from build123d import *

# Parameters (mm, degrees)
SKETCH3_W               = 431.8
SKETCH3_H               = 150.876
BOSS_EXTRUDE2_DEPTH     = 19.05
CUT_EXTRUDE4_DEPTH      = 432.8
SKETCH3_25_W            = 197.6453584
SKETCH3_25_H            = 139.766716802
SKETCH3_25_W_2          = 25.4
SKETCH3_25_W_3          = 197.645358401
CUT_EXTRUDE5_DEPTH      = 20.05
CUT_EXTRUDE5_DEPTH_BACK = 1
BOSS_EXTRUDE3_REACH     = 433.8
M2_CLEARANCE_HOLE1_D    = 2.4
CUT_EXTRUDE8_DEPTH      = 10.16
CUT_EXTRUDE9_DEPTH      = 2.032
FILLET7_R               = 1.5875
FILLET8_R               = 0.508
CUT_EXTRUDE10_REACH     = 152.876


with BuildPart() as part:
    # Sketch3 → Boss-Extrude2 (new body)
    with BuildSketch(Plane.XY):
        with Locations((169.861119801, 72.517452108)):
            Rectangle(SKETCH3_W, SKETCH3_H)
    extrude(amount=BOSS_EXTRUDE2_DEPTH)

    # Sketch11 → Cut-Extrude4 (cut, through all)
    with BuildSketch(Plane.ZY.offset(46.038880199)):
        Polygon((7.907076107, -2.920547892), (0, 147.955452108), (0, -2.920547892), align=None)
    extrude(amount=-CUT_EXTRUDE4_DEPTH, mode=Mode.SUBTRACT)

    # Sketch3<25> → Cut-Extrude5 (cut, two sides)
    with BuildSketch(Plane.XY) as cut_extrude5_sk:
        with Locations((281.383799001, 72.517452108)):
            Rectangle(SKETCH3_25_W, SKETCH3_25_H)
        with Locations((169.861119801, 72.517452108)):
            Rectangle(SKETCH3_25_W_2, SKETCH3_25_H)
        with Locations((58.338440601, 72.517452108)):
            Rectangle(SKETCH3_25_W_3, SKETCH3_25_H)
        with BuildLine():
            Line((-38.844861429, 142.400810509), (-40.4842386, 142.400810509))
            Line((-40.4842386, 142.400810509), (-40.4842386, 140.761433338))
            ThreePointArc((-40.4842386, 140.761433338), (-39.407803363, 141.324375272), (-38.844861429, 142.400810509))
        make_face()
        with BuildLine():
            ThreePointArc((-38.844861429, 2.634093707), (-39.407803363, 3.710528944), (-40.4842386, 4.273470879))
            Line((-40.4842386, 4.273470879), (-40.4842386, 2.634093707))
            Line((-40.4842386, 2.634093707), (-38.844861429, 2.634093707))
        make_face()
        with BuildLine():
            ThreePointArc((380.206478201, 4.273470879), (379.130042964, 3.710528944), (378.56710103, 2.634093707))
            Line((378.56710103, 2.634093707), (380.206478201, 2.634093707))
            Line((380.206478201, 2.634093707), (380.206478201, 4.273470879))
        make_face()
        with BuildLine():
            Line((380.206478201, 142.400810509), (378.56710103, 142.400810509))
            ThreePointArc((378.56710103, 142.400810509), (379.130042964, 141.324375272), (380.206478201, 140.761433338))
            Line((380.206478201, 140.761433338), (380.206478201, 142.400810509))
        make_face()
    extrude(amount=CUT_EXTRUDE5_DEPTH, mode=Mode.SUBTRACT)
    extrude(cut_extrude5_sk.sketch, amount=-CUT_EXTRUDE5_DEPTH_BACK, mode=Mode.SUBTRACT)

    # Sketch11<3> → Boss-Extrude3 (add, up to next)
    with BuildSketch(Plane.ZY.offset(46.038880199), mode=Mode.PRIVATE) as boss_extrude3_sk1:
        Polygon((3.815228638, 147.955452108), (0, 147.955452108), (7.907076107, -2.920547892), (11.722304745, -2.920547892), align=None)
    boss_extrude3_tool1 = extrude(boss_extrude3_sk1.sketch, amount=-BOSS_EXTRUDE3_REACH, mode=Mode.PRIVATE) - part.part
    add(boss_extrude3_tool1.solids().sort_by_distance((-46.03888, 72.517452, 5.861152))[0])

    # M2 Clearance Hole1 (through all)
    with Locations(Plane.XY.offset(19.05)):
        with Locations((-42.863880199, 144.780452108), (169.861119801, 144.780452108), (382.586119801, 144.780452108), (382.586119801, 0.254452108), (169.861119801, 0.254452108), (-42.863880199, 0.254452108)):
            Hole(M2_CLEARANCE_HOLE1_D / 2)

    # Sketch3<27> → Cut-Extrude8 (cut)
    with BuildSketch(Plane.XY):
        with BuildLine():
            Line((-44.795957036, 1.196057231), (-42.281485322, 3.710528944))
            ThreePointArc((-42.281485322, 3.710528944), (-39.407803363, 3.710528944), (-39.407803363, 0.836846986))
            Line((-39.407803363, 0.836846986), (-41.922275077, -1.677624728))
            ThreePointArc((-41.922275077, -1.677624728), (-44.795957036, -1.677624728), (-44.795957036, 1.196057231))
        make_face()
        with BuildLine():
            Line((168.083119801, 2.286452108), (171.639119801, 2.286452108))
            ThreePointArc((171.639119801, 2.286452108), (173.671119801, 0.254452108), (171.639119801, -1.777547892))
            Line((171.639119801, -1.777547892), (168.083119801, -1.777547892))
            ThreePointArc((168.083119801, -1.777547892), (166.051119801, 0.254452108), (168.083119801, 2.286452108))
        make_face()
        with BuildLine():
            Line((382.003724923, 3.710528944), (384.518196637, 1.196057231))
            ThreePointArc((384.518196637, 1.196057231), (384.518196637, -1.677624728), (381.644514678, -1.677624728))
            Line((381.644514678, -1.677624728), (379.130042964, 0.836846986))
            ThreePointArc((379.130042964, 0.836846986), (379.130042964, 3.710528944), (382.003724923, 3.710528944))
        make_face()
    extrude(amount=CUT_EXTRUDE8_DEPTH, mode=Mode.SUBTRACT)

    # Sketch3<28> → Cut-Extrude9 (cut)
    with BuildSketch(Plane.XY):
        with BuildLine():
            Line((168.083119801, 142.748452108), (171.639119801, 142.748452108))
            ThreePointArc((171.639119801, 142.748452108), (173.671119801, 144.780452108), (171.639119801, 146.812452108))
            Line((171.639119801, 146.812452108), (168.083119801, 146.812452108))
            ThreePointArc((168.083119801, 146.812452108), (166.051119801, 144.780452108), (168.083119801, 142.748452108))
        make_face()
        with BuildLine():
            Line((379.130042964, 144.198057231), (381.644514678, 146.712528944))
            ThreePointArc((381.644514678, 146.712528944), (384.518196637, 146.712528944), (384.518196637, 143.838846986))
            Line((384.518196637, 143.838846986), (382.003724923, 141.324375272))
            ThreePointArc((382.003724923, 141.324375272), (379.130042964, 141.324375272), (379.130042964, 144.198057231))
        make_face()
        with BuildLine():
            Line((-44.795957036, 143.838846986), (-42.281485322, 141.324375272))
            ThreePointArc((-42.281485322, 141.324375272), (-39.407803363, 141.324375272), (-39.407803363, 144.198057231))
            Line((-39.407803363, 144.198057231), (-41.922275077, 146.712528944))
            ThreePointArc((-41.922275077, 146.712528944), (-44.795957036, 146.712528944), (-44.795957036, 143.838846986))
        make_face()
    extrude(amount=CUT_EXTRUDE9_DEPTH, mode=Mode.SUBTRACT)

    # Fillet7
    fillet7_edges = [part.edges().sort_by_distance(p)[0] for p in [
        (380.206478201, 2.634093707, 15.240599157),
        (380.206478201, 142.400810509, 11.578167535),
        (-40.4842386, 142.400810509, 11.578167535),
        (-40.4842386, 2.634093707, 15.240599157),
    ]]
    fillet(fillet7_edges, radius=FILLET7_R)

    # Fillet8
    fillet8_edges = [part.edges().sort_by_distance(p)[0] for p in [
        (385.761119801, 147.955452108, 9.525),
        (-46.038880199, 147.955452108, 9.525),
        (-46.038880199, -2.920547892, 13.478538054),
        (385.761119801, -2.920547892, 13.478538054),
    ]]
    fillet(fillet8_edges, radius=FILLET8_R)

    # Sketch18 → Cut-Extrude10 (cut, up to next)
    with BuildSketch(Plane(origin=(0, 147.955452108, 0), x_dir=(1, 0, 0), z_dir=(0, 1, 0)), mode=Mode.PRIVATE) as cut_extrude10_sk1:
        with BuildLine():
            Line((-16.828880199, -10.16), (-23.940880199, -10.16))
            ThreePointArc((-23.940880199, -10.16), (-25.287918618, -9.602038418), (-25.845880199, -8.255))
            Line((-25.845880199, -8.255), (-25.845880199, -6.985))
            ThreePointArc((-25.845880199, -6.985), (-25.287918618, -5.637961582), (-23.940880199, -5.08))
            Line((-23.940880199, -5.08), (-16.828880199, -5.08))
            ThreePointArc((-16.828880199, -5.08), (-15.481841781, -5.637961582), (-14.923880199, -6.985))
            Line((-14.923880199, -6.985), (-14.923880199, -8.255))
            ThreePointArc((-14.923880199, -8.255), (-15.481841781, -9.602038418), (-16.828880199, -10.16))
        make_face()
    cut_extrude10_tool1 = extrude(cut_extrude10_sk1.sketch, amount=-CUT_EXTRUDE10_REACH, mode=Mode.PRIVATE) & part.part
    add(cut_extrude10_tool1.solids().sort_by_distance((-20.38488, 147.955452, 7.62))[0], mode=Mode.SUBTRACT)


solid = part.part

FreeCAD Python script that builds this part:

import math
import FreeCAD as App
import Part
import Sketcher
from FreeCAD import Vector
Q = App.Units.Quantity


def edges_at(feature, points):
    """Names of the edges that pass closest to the given points."""
    edges = feature.Shape.Edges
    near = lambda p: min(range(len(edges)), key=lambda i: edges[i].distToShape(Part.Vertex(*p))[0])
    return sorted({f"Edge{near(p) + 1}" for p in points})


def add_polygon(sketch, points):
    """Adds a closed chain of lines whose ends are joined by coincident constraints."""
    first, n = sketch.GeometryCount, len(points)
    for a, b in zip(points, points[1:] + points[:1]):
        sketch.addGeometry(Part.LineSegment(App.Vector(*a, 0), App.Vector(*b, 0)), False)
    for i in range(n):
        sketch.addConstraint(Sketcher.Constraint("Coincident", first + i, 2, first + (i + 1) % n, 1))

doc = App.newDocument("Part")
body = doc.addObject("PartDesign::Body", "Body")

# Sketch on XY plane
sketch1 = doc.addObject("Sketcher::SketchObject", "Sketch")
body.addObject(sketch1)
sketch1.AttachmentSupport = (doc.XY_Plane, [""])
sketch1.MapMode = "FlatFace"
add_polygon(sketch1, [(-46, 148), (-46, -3), (386, -3), (386, 148)])  # lines 0-3
sketch1.addConstraint([
    Sketcher.Constraint("Vertical", 0),
    Sketcher.Constraint("Horizontal", 1),
    Sketcher.Constraint("Vertical", 2),
    Sketcher.Constraint("Horizontal", 3),
    Sketcher.Constraint("DistanceX", 1, 1, 1, 2, Q("17 in")),
    Sketcher.Constraint("DistanceY", 0, 2, 0, 1, Q("5.94 in")),
    Sketcher.Constraint("DistanceX", 0, 2, -1, 1, Q("46.03888 mm")),
    Sketcher.Constraint("DistanceY", 0, 2, -1, 1, Q("2.920548 mm")),
])
pad1 = doc.addObject("PartDesign::Pad", "Pad")
body.addObject(pad1)
pad1.Profile = sketch1
pad1.Length = Q("0.75 in")

# Sketch on YZ plane
sketch2 = doc.addObject("Sketcher::SketchObject", "Sketch001")
body.addObject(sketch2)
sketch2.AttachmentSupport = (doc.YZ_Plane, [""])
sketch2.MapMode = "FlatFace"
sketch2.AttachmentOffset = App.Placement(Vector(0, 0, -46.03888), App.Rotation())
add_polygon(sketch2, [(-3, 8), (148, 0), (-3, 0)])  # lines 0-2
sketch2.addConstraint([
    Sketcher.Constraint("Horizontal", 1),
    Sketcher.Constraint("Vertical", 2),
    Sketcher.Constraint("PointOnObject", 0, 2, -1),
    Sketcher.Constraint("Angle", 0, Q("-3 deg")),
    Sketcher.Constraint("DistanceX", 1, 2, 1, 1, Q("5.94 in")),
    Sketcher.Constraint("DistanceX", -1, 1, 0, 2, Q("147.955452 mm")),
])
pocket1 = doc.addObject("PartDesign::Pocket", "Pocket")
body.addObject(pocket1)
pocket1.Profile = sketch2
pocket1.Type = "ThroughAll"
pocket1.Reversed = True

# Sketch on XY plane
sketch3 = doc.addObject("Sketcher::SketchObject", "Sketch002")
body.addObject(sketch3)
sketch3.AttachmentSupport = (doc.XY_Plane, [""])
sketch3.MapMode = "FlatFace"
add_polygon(sketch3, [(-40, 142), (-40, 3), (380, 3), (380, 142)])  # lines 0-3
sketch3.addConstraint([
    Sketcher.Constraint("Vertical", 0),
    Sketcher.Constraint("Horizontal", 1),
    Sketcher.Constraint("Vertical", 2),
    Sketcher.Constraint("Horizontal", 3),
    Sketcher.Constraint("DistanceX", 1, 1, 1, 2, Q("420.690717 mm")),
    Sketcher.Constraint("DistanceY", 0, 2, 0, 1, Q("139.766717 mm")),
    Sketcher.Constraint("DistanceX", 0, 2, -1, 1, Q("40.484239 mm")),
    Sketcher.Constraint("DistanceY", -1, 1, 2, 2, Q("142.400811 mm")),
])
pocket2 = doc.addObject("PartDesign::Pocket", "Pocket001")
body.addObject(pocket2)
pocket2.Profile = sketch3
pocket2.Type = "ThroughAll"
pocket2.Midplane = True

# Sketch on YZ plane
sketch4 = doc.addObject("Sketcher::SketchObject", "Sketch003")
body.addObject(sketch4)
sketch4.AttachmentSupport = (doc.YZ_Plane, [""])
sketch4.MapMode = "FlatFace"
sketch4.AttachmentOffset = App.Placement(Vector(0, 0, -46.03888), App.Rotation())
add_polygon(sketch4, [(148, 3.8), (148, 0), (-2.9, 7.9), (-2.9, 11.7)])  # lines 0-3
sketch4.addConstraint([
    Sketcher.Constraint("Vertical", 0),
    Sketcher.Constraint("Vertical", 2),
    Sketcher.Constraint("PointOnObject", 0, 2, -1),
    Sketcher.Constraint("Parallel", 1, 3),
    Sketcher.Constraint("Angle", 1, Q("177 deg")),
    Sketcher.Constraint("DistanceX", 1, 2, 0, 2, Q("5.94 in")),
    Sketcher.Constraint("DistanceY", 0, 2, 0, 1, Q("3.815229 mm")),
    Sketcher.Constraint("DistanceX", -1, 1, 0, 2, Q("147.955452 mm")),
])
pad2 = doc.addObject("PartDesign::Pad", "Pad001")
body.addObject(pad2)
pad2.Profile = sketch4
pad2.Length = 426.245358

# Sketch on XY plane
sketch5 = doc.addObject("Sketcher::SketchObject", "Sketch004")
body.addObject(sketch5)
sketch5.AttachmentSupport = (doc.XY_Plane, [""])
sketch5.MapMode = "FlatFace"
sketch5.AttachmentOffset = App.Placement(Vector(0, 0, 0.75 * 25.4), App.Rotation())
sketch5.addGeometry([
    Part.Circle(Vector(-42.9, 144.8, 0), Vector(0, 0, 1), 1.2),  # 0
    Part.Circle(Vector(169.9, 144.8, 0), Vector(0, 0, 1), 1.2),  # 1
    Part.Circle(Vector(382.6, 144.8, 0), Vector(0, 0, 1), 1.2),  # 2
    Part.Circle(Vector(382.6, 0.3, 0), Vector(0, 0, 1), 1.2),  # 3
    Part.Circle(Vector(169.9, 0.3, 0), Vector(0, 0, 1), 1.2),  # 4
    Part.Circle(Vector(-42.9, 0.3, 0), Vector(0, 0, 1), 1.2),  # 5
], False)
sketch5.addConstraint([
    Sketcher.Constraint("Equal", 0, 1),
    Sketcher.Constraint("Equal", 1, 2),
    Sketcher.Constraint("Equal", 2, 3),
    Sketcher.Constraint("Equal", 3, 4),
    Sketcher.Constraint("Equal", 4, 5),
    Sketcher.Constraint("Horizontal", 0, 3, 1, 3),
    Sketcher.Constraint("Horizontal", 1, 3, 2, 3),
    Sketcher.Constraint("Horizontal", 3, 3, 4, 3),
    Sketcher.Constraint("Horizontal", 4, 3, 5, 3),
    Sketcher.Constraint("Vertical", 2, 3, 3, 3),
    Sketcher.Constraint("Vertical", 1, 3, 4, 3),
    Sketcher.Constraint("Vertical", 0, 3, 5, 3),
    Sketcher.Constraint("Diameter", 0, Q("2.4 mm")),
    Sketcher.Constraint("DistanceX", 0, 3, 2, 3, Q("16.75 in")),
    Sketcher.Constraint("DistanceY", 3, 3, 2, 3, Q("5.69 in")),
    Sketcher.Constraint("DistanceX", 0, 3, 1, 3, Q("8.375 in")),
    Sketcher.Constraint("DistanceX", 0, 3, -1, 1, Q("42.86388 mm")),
    Sketcher.Constraint("DistanceY", -1, 1, 0, 3, Q("144.780452 mm")),
])
doc.recompute()
hole = doc.addObject("PartDesign::Hole", "Hole")
body.addObject(hole)
hole.Profile = sketch5
hole.ThreadType = "None"
hole.Diameter = 2.4
hole.DepthType = "ThroughAll"

# Sketch on XY plane
sketch6 = doc.addObject("Sketcher::SketchObject", "Sketch005")
body.addObject(sketch6)
sketch6.AttachmentSupport = (doc.XY_Plane, [""])
sketch6.MapMode = "FlatFace"
sketch6.addGeometry([
    Part.LineSegment(Vector(-42.3, 3.7, 0), Vector(-44.8, 1.2, 0)),  # 0
    Part.ArcOfCircle(Part.Circle(Vector(-43.4, -0.2, 0), Vector(0, 0, 1), 2), math.radians(135), math.radians(315)),  # 1
    Part.LineSegment(Vector(-41.9, -1.7, 0), Vector(-39.4, 0.8, 0)),  # 2
    Part.ArcOfCircle(Part.Circle(Vector(-40.8, 2.3, 0), Vector(0, 0, 1), 2), math.radians(-45), math.radians(135)),  # 3
    Part.LineSegment(Vector(171.6, 2.3, 0), Vector(168.1, 2.3, 0)),  # 4
    Part.ArcOfCircle(Part.Circle(Vector(168.1, 0.3, 0), Vector(0, 0, 1), 2), math.radians(90), math.radians(270)),  # 5
    Part.LineSegment(Vector(168.1, -1.8, 0), Vector(171.6, -1.8, 0)),  # 6
    Part.ArcOfCircle(Part.Circle(Vector(171.6, 0.3, 0), Vector(0, 0, 1), 2), math.radians(-90), math.radians(90)),  # 7
    Part.LineSegment(Vector(384.5, 1.2, 0), Vector(382, 3.7, 0)),  # 8
    Part.ArcOfCircle(Part.Circle(Vector(380.6, 2.3, 0), Vector(0, 0, 1), 2), math.radians(45), math.radians(225)),  # 9
    Part.LineSegment(Vector(379.1, 0.8, 0), Vector(381.6, -1.7, 0)),  # 10
    Part.ArcOfCircle(Part.Circle(Vector(383.1, -0.2, 0), Vector(0, 0, 1), 2), math.radians(-135), math.radians(45)),  # 11
], False)
sketch6.addConstraint([
    Sketcher.Constraint("Tangent", 0, 2, 1, 1),
    Sketcher.Constraint("Tangent", 1, 2, 2, 1),
    Sketcher.Constraint("Tangent", 2, 2, 3, 1),
    Sketcher.Constraint("Tangent", 3, 2, 0, 1),
    Sketcher.Constraint("Tangent", 4, 2, 5, 1),
    Sketcher.Constraint("Tangent", 5, 2, 6, 1),
    Sketcher.Constraint("Tangent", 6, 2, 7, 1),
    Sketcher.Constraint("Tangent", 7, 2, 4, 1),
    Sketcher.Constraint("Tangent", 8, 2, 9, 1),
    Sketcher.Constraint("Tangent", 9, 2, 10, 1),
    Sketcher.Constraint("Tangent", 10, 2, 11, 1),
    Sketcher.Constraint("Tangent", 11, 2, 8, 1),
    Sketcher.Constraint("Horizontal", 4),
    Sketcher.Constraint("Horizontal", 6),
    Sketcher.Constraint("Equal", 1, 3),
    Sketcher.Constraint("Equal", 3, 5),
    Sketcher.Constraint("Equal", 7, 9),
    Sketcher.Constraint("Equal", 9, 11),
    Sketcher.Constraint("Perpendicular", 2, 8),
    Sketcher.Constraint("Horizontal", 3, 3, 9, 3),
    Sketcher.Constraint("Horizontal", 1, 3, 11, 3),
    Sketcher.Constraint("Horizontal", 3, 2, 8, 2),
    Sketcher.Constraint("Radius", 1, Q("0.08 in")),
    Sketcher.Constraint("DistanceX", 4, 2, 4, 1, Q("0.14 in")),
    Sketcher.Constraint("Distance", 0, Q("0.14 in")),
    Sketcher.Constraint("DistanceX", 1, 3, 9, 3, Q("16.69 in")),
    Sketcher.Constraint("DistanceX", -1, 1, 5, 3, Q("168.08312 mm")),
    Sketcher.Constraint("DistanceY", -1, 1, 3, 2, Q("3.710529 mm")),
    Sketcher.Constraint("DistanceX", 1, 3, -1, 1, Q("43.359116 mm")),
    Sketcher.Constraint("DistanceY", -1, 1, 5, 3, Q("0.254452 mm")),
])
pocket3 = doc.addObject("PartDesign::Pocket", "Pocket002")
body.addObject(pocket3)
pocket3.Profile = sketch6
pocket3.Length = Q("0.4 in")
pocket3.Reversed = True

# Sketch on XY plane
sketch7 = doc.addObject("Sketcher::SketchObject", "Sketch006")
body.addObject(sketch7)
sketch7.AttachmentSupport = (doc.XY_Plane, [""])
sketch7.MapMode = "FlatFace"
sketch7.addGeometry([
    Part.LineSegment(Vector(168.1, 142.7, 0), Vector(171.6, 142.7, 0)),  # 0
    Part.ArcOfCircle(Part.Circle(Vector(171.6, 144.8, 0), Vector(0, 0, 1), 2), math.radians(-90), math.radians(90)),  # 1
    Part.LineSegment(Vector(171.6, 146.8, 0), Vector(168.1, 146.8, 0)),  # 2
    Part.ArcOfCircle(Part.Circle(Vector(168.1, 144.8, 0), Vector(0, 0, 1), 2), math.radians(90), math.radians(270)),  # 3
    Part.LineSegment(Vector(381.6, 146.7, 0), Vector(379.1, 144.2, 0)),  # 4
    Part.ArcOfCircle(Part.Circle(Vector(380.6, 142.8, 0), Vector(0, 0, 1), 2), math.radians(135), math.radians(315)),  # 5
    Part.LineSegment(Vector(382, 141.3, 0), Vector(384.5, 143.8, 0)),  # 6
    Part.ArcOfCircle(Part.Circle(Vector(383.1, 145.3, 0), Vector(0, 0, 1), 2), math.radians(-45), math.radians(135)),  # 7
    Part.LineSegment(Vector(-44.8, 143.8, 0), Vector(-42.3, 141.3, 0)),  # 8
    Part.ArcOfCircle(Part.Circle(Vector(-40.8, 142.8, 0), Vector(0, 0, 1), 2), math.radians(-135), math.radians(45)),  # 9
    Part.LineSegment(Vector(-39.4, 144.2, 0), Vector(-41.9, 146.7, 0)),  # 10
    Part.ArcOfCircle(Part.Circle(Vector(-43.4, 145.3, 0), Vector(0, 0, 1), 2), math.radians(45), math.radians(225)),  # 11
], False)
sketch7.addConstraint([
    Sketcher.Constraint("Tangent", 0, 2, 1, 1),
    Sketcher.Constraint("Tangent", 1, 2, 2, 1),
    Sketcher.Constraint("Tangent", 2, 2, 3, 1),
    Sketcher.Constraint("Tangent", 3, 2, 0, 1),
    Sketcher.Constraint("Tangent", 4, 2, 5, 1),
    Sketcher.Constraint("Tangent", 5, 2, 6, 1),
    Sketcher.Constraint("Tangent", 6, 2, 7, 1),
    Sketcher.Constraint("Tangent", 7, 2, 4, 1),
    Sketcher.Constraint("Tangent", 8, 2, 9, 1),
    Sketcher.Constraint("Tangent", 9, 2, 10, 1),
    Sketcher.Constraint("Tangent", 10, 2, 11, 1),
    Sketcher.Constraint("Tangent", 11, 2, 8, 1),
    Sketcher.Constraint("Horizontal", 0),
    Sketcher.Constraint("Horizontal", 2),
    Sketcher.Constraint("Equal", 3, 5),
    Sketcher.Constraint("Equal", 5, 7),
    Sketcher.Constraint("Equal", 7, 9),
    Sketcher.Constraint("Equal", 9, 11),
    Sketcher.Constraint("Perpendicular", 6, 8),
    Sketcher.Constraint("Horizontal", 5, 3, 9, 3),
    Sketcher.Constraint("Horizontal", 7, 3, 11, 3),
    Sketcher.Constraint("Horizontal", 5, 2, 8, 2),
    Sketcher.Constraint("Radius", 1, Q("0.08 in")),
    Sketcher.Constraint("DistanceX", 0, 1, 0, 2, Q("0.14 in")),
    Sketcher.Constraint("Distance", 4, Q("0.14 in")),
    Sketcher.Constraint("DistanceX", 9, 3, 7, 3, Q("16.69 in")),
    Sketcher.Constraint("DistanceX", -1, 1, 1, 3, Q("171.63912 mm")),
    Sketcher.Constraint("DistanceY", -1, 1, 7, 2, Q("146.712529 mm")),
    Sketcher.Constraint("DistanceY", -1, 1, 1, 3, Q("144.780452 mm")),
    Sketcher.Constraint("DistanceX", -1, 1, 5, 3, Q("380.566884 mm")),
])
pocket4 = doc.addObject("PartDesign::Pocket", "Pocket003")
body.addObject(pocket4)
pocket4.Profile = sketch7
pocket4.Length = Q("0.08 in")
pocket4.Reversed = True
doc.recompute()

fillet = doc.addObject("PartDesign::Fillet", "Fillet")
body.addObject(fillet)
fillet.Base = (pocket4, edges_at(pocket4, [
    (380.206, 2.634, 15.241),
    (380.206, 142.401, 11.578),
    (-40.484, 142.401, 11.578),
    (-40.484, 2.634, 15.241),
]))
fillet.Radius = Q("0.0625 in")
doc.recompute()

fillet2 = doc.addObject("PartDesign::Fillet", "Fillet001")
body.addObject(fillet2)
fillet2.Base = (fillet, edges_at(fillet, [
    (385.761, 147.955, 9.525),
    (-46.039, 147.955, 9.525),
    (-46.039, -2.921, 13.479),
    (385.761, -2.921, 13.479),
]))
fillet2.Radius = Q("0.02 in")

# Sketch on XZ plane
sketch8 = doc.addObject("Sketcher::SketchObject", "Sketch007")
body.addObject(sketch8)
sketch8.AttachmentSupport = (doc.XZ_Plane, [""])
sketch8.MapMode = "FlatFace"
sketch8.AttachmentOffset = App.Placement(Vector(0, 0, -147.955452), App.Rotation())
sketch8.addGeometry([
    Part.LineSegment(Vector(-23.9, 10.2, 0), Vector(-16.8, 10.2, 0)),  # 0
    Part.ArcOfCircle(Part.Circle(Vector(-16.8, 8.3, 0), Vector(0, 0, 1), 1.9), math.radians(0), math.radians(90)),  # 1
    Part.LineSegment(Vector(-14.9, 8.3, 0), Vector(-14.9, 7, 0)),  # 2
    Part.ArcOfCircle(Part.Circle(Vector(-16.8, 7, 0), Vector(0, 0, 1), 1.9), math.radians(-90), math.radians(0)),  # 3
    Part.LineSegment(Vector(-16.8, 5.1, 0), Vector(-23.9, 5.1, 0)),  # 4
    Part.ArcOfCircle(Part.Circle(Vector(-23.9, 7, 0), Vector(0, 0, 1), 1.9), math.radians(180), math.radians(270)),  # 5
    Part.LineSegment(Vector(-25.8, 7, 0), Vector(-25.8, 8.3, 0)),  # 6
    Part.ArcOfCircle(Part.Circle(Vector(-23.9, 8.3, 0), Vector(0, 0, 1), 1.9), math.radians(90), math.radians(180)),  # 7
], False)
sketch8.addConstraint([
    Sketcher.Constraint("Tangent", 0, 2, 1, 2),
    Sketcher.Constraint("Tangent", 1, 1, 2, 1),
    Sketcher.Constraint("Tangent", 2, 2, 3, 2),
    Sketcher.Constraint("Tangent", 3, 1, 4, 1),
    Sketcher.Constraint("Tangent", 4, 2, 5, 2),
    Sketcher.Constraint("Tangent", 5, 1, 6, 1),
    Sketcher.Constraint("Tangent", 6, 2, 7, 2),
    Sketcher.Constraint("Tangent", 7, 1, 0, 1),
    Sketcher.Constraint("Horizontal", 0),
    Sketcher.Constraint("Vertical", 2),
    Sketcher.Constraint("Horizontal", 4),
    Sketcher.Constraint("Vertical", 6),
    Sketcher.Constraint("Equal", 1, 3),
    Sketcher.Constraint("Equal", 3, 5),
    Sketcher.Constraint("Equal", 5, 7),
    Sketcher.Constraint("Radius", 1, Q("0.075 in")),
    Sketcher.Constraint("DistanceX", 0, 1, 0, 2, Q("0.28 in")),
    Sketcher.Constraint("DistanceY", 2, 2, 2, 1, Q("0.05 in")),
    Sketcher.Constraint("DistanceY", -1, 1, 0, 2, Q("0.4 in")),
    Sketcher.Constraint("DistanceX", 1, 3, -1, 1, Q("16.82888 mm")),
])
pocket5 = doc.addObject("PartDesign::Pocket", "Pocket004")
body.addObject(pocket5)
pocket5.Profile = sketch8
pocket5.Type = "UpToFirst"
pocket5.Reversed = True

doc.recompute()
